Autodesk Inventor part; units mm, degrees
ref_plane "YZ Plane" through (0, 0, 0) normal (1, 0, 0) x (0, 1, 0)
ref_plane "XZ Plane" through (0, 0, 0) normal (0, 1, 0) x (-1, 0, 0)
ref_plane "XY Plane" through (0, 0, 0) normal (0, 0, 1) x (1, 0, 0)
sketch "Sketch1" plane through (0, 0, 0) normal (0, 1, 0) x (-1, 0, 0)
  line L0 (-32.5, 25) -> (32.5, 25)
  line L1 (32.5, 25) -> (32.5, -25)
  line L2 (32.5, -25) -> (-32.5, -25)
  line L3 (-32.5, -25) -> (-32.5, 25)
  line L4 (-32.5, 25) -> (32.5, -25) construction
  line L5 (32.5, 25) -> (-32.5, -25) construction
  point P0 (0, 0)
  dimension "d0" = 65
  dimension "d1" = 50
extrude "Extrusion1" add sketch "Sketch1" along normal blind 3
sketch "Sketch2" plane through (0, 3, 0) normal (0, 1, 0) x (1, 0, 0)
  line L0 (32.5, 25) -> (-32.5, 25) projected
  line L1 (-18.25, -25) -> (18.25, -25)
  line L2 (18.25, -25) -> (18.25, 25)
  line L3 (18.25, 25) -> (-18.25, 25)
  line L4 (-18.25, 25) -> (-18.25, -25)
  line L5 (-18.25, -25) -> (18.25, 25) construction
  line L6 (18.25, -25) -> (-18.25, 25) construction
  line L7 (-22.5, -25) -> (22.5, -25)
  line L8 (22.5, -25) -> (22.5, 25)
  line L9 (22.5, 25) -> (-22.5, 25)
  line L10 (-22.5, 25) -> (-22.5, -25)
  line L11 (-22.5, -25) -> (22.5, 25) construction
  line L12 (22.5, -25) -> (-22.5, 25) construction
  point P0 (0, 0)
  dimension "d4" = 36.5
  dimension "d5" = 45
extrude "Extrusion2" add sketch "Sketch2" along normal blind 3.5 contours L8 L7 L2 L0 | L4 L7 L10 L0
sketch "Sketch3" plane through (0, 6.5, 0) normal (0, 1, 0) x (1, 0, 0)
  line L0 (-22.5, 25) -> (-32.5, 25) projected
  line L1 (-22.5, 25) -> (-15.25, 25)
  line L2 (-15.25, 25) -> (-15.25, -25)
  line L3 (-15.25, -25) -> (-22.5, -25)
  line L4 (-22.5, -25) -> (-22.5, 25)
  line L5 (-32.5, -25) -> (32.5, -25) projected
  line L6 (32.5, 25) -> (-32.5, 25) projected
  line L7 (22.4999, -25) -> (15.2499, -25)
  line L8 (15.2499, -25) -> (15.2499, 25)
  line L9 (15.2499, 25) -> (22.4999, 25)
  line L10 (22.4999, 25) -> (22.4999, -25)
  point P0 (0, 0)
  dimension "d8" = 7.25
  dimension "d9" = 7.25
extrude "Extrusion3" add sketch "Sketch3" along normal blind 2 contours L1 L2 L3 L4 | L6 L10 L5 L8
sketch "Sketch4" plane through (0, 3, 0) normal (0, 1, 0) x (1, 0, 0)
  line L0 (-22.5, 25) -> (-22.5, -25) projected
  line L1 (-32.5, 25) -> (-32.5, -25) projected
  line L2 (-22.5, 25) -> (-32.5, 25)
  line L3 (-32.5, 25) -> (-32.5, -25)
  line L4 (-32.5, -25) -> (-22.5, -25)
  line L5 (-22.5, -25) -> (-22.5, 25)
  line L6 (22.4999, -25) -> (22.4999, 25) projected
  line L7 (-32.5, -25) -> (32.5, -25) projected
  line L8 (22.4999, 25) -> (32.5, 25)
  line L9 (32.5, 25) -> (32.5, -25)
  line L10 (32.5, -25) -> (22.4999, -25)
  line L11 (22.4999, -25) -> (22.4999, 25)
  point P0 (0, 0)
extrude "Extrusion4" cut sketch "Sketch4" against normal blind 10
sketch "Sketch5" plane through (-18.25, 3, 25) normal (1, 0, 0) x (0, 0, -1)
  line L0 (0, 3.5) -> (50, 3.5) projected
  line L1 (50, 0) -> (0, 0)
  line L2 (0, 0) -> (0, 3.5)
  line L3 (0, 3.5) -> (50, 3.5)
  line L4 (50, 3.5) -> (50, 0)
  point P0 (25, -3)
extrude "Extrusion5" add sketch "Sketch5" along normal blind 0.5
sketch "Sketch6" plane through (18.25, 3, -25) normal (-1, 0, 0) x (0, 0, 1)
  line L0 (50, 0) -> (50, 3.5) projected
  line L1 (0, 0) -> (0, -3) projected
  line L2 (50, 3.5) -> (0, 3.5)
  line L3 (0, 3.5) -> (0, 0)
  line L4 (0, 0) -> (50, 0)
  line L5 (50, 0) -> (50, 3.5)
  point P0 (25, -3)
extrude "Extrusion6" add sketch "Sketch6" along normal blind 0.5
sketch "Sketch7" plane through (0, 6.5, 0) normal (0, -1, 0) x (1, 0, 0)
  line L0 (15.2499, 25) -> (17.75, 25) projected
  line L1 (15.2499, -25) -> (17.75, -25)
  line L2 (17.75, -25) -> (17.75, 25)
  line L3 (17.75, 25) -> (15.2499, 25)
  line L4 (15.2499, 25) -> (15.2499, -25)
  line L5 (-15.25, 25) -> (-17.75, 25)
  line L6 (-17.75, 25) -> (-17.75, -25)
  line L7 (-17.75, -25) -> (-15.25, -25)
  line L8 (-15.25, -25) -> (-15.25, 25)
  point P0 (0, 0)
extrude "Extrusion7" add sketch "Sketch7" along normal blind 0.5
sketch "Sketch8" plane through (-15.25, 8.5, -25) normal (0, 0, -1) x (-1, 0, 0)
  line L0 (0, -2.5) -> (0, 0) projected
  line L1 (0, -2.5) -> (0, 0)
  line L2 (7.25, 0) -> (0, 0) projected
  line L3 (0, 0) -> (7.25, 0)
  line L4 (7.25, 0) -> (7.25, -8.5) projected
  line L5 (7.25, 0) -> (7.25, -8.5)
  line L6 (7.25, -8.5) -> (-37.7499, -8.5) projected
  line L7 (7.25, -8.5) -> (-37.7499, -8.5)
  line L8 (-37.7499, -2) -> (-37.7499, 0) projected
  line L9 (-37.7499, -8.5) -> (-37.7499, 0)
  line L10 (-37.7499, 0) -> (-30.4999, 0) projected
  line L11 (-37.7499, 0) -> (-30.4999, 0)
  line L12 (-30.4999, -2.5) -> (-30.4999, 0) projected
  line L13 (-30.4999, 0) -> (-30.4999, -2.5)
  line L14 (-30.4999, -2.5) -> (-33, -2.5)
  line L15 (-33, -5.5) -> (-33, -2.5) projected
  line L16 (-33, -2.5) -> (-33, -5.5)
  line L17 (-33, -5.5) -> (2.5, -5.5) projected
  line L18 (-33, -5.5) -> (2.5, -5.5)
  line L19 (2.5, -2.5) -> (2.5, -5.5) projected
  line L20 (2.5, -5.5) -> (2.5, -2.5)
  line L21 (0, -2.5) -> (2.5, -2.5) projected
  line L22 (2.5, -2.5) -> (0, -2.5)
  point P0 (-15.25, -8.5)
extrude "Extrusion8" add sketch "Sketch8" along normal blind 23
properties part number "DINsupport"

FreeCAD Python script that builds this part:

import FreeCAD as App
import Part
import Sketcher

doc = App.newDocument("Part")
body = doc.addObject("PartDesign::Body", "Body")

sketch1 = body.newObject("Sketcher::SketchObject", "Sketch")
sketch1.AttachmentSupport = (doc.getObject("XZ_Plane"), [""])
sketch1.MapMode = "FlatFace"
sketch1.addGeometry([
    Part.LineSegment(App.Vector(-32, 25, 0), App.Vector(32, 25, 0)),
    Part.LineSegment(App.Vector(32, 25, 0), App.Vector(32, -25, 0)),
    Part.LineSegment(App.Vector(32, -25, 0), App.Vector(-32, -25, 0)),
    Part.LineSegment(App.Vector(-32, -25, 0), App.Vector(-32, 25, 0)),
], False)
sketch1.addConstraint([
    Sketcher.Constraint("Coincident", 0, 2, 1, 1),
    Sketcher.Constraint("Coincident", 1, 2, 2, 1),
    Sketcher.Constraint("Coincident", 2, 2, 3, 1),
    Sketcher.Constraint("Coincident", 3, 2, 0, 1),
    Sketcher.Constraint("Horizontal", 0),
    Sketcher.Constraint("Vertical", 1),
    Sketcher.Constraint("Horizontal", 2),
    Sketcher.Constraint("Vertical", 3),
    Sketcher.Constraint("Symmetric", 0, 2, 2, 2, -1, 1),
    Sketcher.Constraint("DistanceX", 0, 1, 0, 2, 65.0),
    Sketcher.Constraint("DistanceY", 1, 2, 1, 1, 50.0),
])
pad1 = body.newObject("PartDesign::Pad", "Pad")
pad1.Profile = sketch1
pad1.Length = 3
pad1.Reversed = True

sketch2 = body.newObject("Sketcher::SketchObject", "Sketch001")
sketch2.AttachmentSupport = (doc.getObject("XZ_Plane"), [""])
sketch2.MapMode = "FlatFace"
sketch2.AttachmentOffset = App.Placement(App.Vector(0, 0, -3), App.Rotation())
sketch2.addGeometry([
    Part.LineSegment(App.Vector(22.5, 25, 0), App.Vector(22.5, -25, 0)),
    Part.LineSegment(App.Vector(22.5, -25, 0), App.Vector(18.2, -25, 0)),
    Part.LineSegment(App.Vector(18.2, -25, 0), App.Vector(18.2, 25, 0)),
    Part.LineSegment(App.Vector(18.2, 25, 0), App.Vector(22.5, 25, 0)),
    Part.LineSegment(App.Vector(-18.2, 25, 0), App.Vector(-18.2, -25, 0)),
    Part.LineSegment(App.Vector(-18.2, -25, 0), App.Vector(-22.5, -25, 0)),
    Part.LineSegment(App.Vector(-22.5, -25, 0), App.Vector(-22.5, 25, 0)),
    Part.LineSegment(App.Vector(-22.5, 25, 0), App.Vector(-18.2, 25, 0)),
], False)
sketch2.addConstraint([
    Sketcher.Constraint("Coincident", 0, 2, 1, 1),
    Sketcher.Constraint("Coincident", 1, 2, 2, 1),
    Sketcher.Constraint("Coincident", 2, 2, 3, 1),
    Sketcher.Constraint("Coincident", 3, 2, 0, 1),
    Sketcher.Constraint("Coincident", 4, 2, 5, 1),
    Sketcher.Constraint("Coincident", 5, 2, 6, 1),
    Sketcher.Constraint("Coincident", 6, 2, 7, 1),
    Sketcher.Constraint("Coincident", 7, 2, 4, 1),
    Sketcher.Constraint("Vertical", 0),
    Sketcher.Constraint("Horizontal", 1),
    Sketcher.Constraint("Vertical", 2),
    Sketcher.Constraint("Horizontal", 3),
    Sketcher.Constraint("Vertical", 4),
    Sketcher.Constraint("Horizontal", 5),
    Sketcher.Constraint("Vertical", 6),
    Sketcher.Constraint("Horizontal", 7),
    Sketcher.Constraint("Symmetric", 2, 2, 4, 2, -1, 1),
    Sketcher.Constraint("Symmetric", 0, 2, 6, 2, -1, 1),
    Sketcher.Constraint("Horizontal", 1, 2, 4, 2),
    Sketcher.Constraint("DistanceX", 5, 2, 0, 2, 45.0),
    Sketcher.Constraint("DistanceX", 4, 2, 1, 2, 36.5),
    Sketcher.Constraint("DistanceY", 0, 2, 0, 1, 50.0),
])
pad2 = body.newObject("PartDesign::Pad", "Pad001")
pad2.Profile = sketch2
pad2.Length = 3.5
pad2.Reversed = True

sketch3 = body.newObject("Sketcher::SketchObject", "Sketch002")
sketch3.AttachmentSupport = (doc.getObject("XZ_Plane"), [""])
sketch3.MapMode = "FlatFace"
sketch3.AttachmentOffset = App.Placement(App.Vector(0, 0, -6.5), App.Rotation())
sketch3.addGeometry([
    Part.LineSegment(App.Vector(-15, -25, 0), App.Vector(-22, -25, 0)),
    Part.LineSegment(App.Vector(-22, -25, 0), App.Vector(-22, 25, 0)),
    Part.LineSegment(App.Vector(-22, 25, 0), App.Vector(-15, 25, 0)),
    Part.LineSegment(App.Vector(-15, 25, 0), App.Vector(-15, -25, 0)),
    Part.LineSegment(App.Vector(22, -25, 0), App.Vector(15, -25, 0)),
    Part.LineSegment(App.Vector(15, -25, 0), App.Vector(15, 25, 0)),
    Part.LineSegment(App.Vector(15, 25, 0), App.Vector(22, 25, 0)),
    Part.LineSegment(App.Vector(22, 25, 0), App.Vector(22, -25, 0)),
], False)
sketch3.addConstraint([
    Sketcher.Constraint("Coincident", 0, 2, 1, 1),
    Sketcher.Constraint("Coincident", 1, 2, 2, 1),
    Sketcher.Constraint("Coincident", 2, 2, 3, 1),
    Sketcher.Constraint("Coincident", 3, 2, 0, 1),
    Sketcher.Constraint("Coincident", 4, 2, 5, 1),
    Sketcher.Constraint("Coincident", 5, 2, 6, 1),
    Sketcher.Constraint("Coincident", 6, 2, 7, 1),
    Sketcher.Constraint("Coincident", 7, 2, 4, 1),
    Sketcher.Constraint("Horizontal", 0),
    Sketcher.Constraint("Vertical", 1),
    Sketcher.Constraint("Horizontal", 2),
    Sketcher.Constraint("Vertical", 3),
    Sketcher.Constraint("Horizontal", 4),
    Sketcher.Constraint("Vertical", 5),
    Sketcher.Constraint("Horizontal", 6),
    Sketcher.Constraint("Vertical", 7),
    Sketcher.Constraint("Symmetric", 2, 2, 4, 2, -1, 1),
    Sketcher.Constraint("Symmetric", 0, 2, 6, 2, -1, 1),
    Sketcher.Constraint("Horizontal", 3, 2, 4, 2),
    Sketcher.Constraint("DistanceX", 0, 2, 0, 1, 7.25),
    Sketcher.Constraint("DistanceY", 1, 1, 1, 2, 50.0),
    Sketcher.Constraint("DistanceX", 1, 2, 6, 2, 45.0),
])
pad3 = body.newObject("PartDesign::Pad", "Pad002")
pad3.Profile = sketch3
pad3.Length = 2
pad3.Reversed = True

sketch4 = body.newObject("Sketcher::SketchObject", "Sketch003")
sketch4.AttachmentSupport = (doc.getObject("XZ_Plane"), [""])
sketch4.MapMode = "FlatFace"
sketch4.AttachmentOffset = App.Placement(App.Vector(0, 0, -3), App.Rotation())
sketch4.addGeometry([
    Part.LineSegment(App.Vector(22, -25, 0), App.Vector(22, 25, 0)),
    Part.LineSegment(App.Vector(22, 25, 0), App.Vector(32, 25, 0)),
    Part.LineSegment(App.Vector(32, 25, 0), App.Vector(32, -25, 0)),
    Part.LineSegment(App.Vector(32, -25, 0), App.Vector(22, -25, 0)),
    Part.LineSegment(App.Vector(-22, 25, 0), App.Vector(-22, -25, 0)),
    Part.LineSegment(App.Vector(-22, -25, 0), App.Vector(-32, -25, 0)),
    Part.LineSegment(App.Vector(-32, -25, 0), App.Vector(-32, 25, 0)),
    Part.LineSegment(App.Vector(-32, 25, 0), App.Vector(-22, 25, 0)),
], False)
sketch4.addConstraint([
    Sketcher.Constraint("Coincident", 0, 2, 1, 1),
    Sketcher.Constraint("Coincident", 1, 2, 2, 1),
    Sketcher.Constraint("Coincident", 2, 2, 3, 1),
    Sketcher.Constraint("Coincident", 3, 2, 0, 1),
    Sketcher.Constraint("Coincident", 4, 2, 5, 1),
    Sketcher.Constraint("Coincident", 5, 2, 6, 1),
    Sketcher.Constraint("Coincident", 6, 2, 7, 1),
    Sketcher.Constraint("Coincident", 7, 2, 4, 1),
    Sketcher.Constraint("Vertical", 0),
    Sketcher.Constraint("Horizontal", 1),
    Sketcher.Constraint("Vertical", 2),
    Sketcher.Constraint("Horizontal", 3),
    Sketcher.Constraint("Vertical", 4),
    Sketcher.Constraint("Horizontal", 5),
    Sketcher.Constraint("Vertical", 6),
    Sketcher.Constraint("Horizontal", 7),
    Sketcher.Constraint("Symmetric", 0, 2, 4, 2, -1, 1),
    Sketcher.Constraint("Symmetric", 2, 2, 6, 2, -1, 1),
    Sketcher.Constraint("Horizontal", 3, 2, 4, 2),
    Sketcher.Constraint("DistanceX", 1, 1, 1, 2, 10.0),
    Sketcher.Constraint("DistanceY", 0, 1, 0, 2, 50.0),
    Sketcher.Constraint("DistanceX", 4, 2, 3, 2, 45.0),
])
pocket1 = body.newObject("PartDesign::Pocket", "Pocket")
pocket1.Profile = sketch4
pocket1.Length = 10
pocket1.Reversed = True

sketch5 = body.newObject("Sketcher::SketchObject", "Sketch004")
sketch5.AttachmentSupport = (doc.getObject("YZ_Plane"), [""])
sketch5.MapMode = "FlatFace"
sketch5.AttachmentOffset = App.Placement(App.Vector(0, 0, -18.25), App.Rotation())
sketch5.addGeometry([
    Part.LineSegment(App.Vector(6.5, -25, 0), App.Vector(6.5, 25, 0)),
    Part.LineSegment(App.Vector(6.5, 25, 0), App.Vector(3, 25, 0)),
    Part.LineSegment(App.Vector(3, 25, 0), App.Vector(3, -25, 0)),
    Part.LineSegment(App.Vector(3, -25, 0), App.Vector(6.5, -25, 0)),
], False)
sketch5.addConstraint([
    Sketcher.Constraint("Coincident", 0, 2, 1, 1),
    Sketcher.Constraint("Coincident", 1, 2, 2, 1),
    Sketcher.Constraint("Coincident", 2, 2, 3, 1),
    Sketcher.Constraint("Coincident", 3, 2, 0, 1),
    Sketcher.Constraint("Vertical", 0),
    Sketcher.Constraint("Horizontal", 1),
    Sketcher.Constraint("Vertical", 2),
    Sketcher.Constraint("Horizontal", 3),
    Sketcher.Constraint("DistanceY", 0, 1, 0, 2, 50.0),
    Sketcher.Constraint("DistanceX", 1, 2, 1, 1, 3.5),
    Sketcher.Constraint("DistanceY", -1, 1, 0, 2, 25.0),
    Sketcher.Constraint("DistanceX", -1, 1, 1, 2, 3.0),
])
pad4 = body.newObject("PartDesign::Pad", "Pad003")
pad4.Profile = sketch5
pad4.Length = 0.5

sketch6 = body.newObject("Sketcher::SketchObject", "Sketch005")
sketch6.AttachmentSupport = (doc.getObject("YZ_Plane"), [""])
sketch6.MapMode = "FlatFace"
sketch6.AttachmentOffset = App.Placement(App.Vector(0, 0, 18.25), App.Rotation())
sketch6.addGeometry([
    Part.LineSegment(App.Vector(3, -25, 0), App.Vector(3, 25, 0)),
    Part.LineSegment(App.Vector(3, 25, 0), App.Vector(6.5, 25, 0)),
    Part.LineSegment(App.Vector(6.5, 25, 0), App.Vector(6.5, -25, 0)),
    Part.LineSegment(App.Vector(6.5, -25, 0), App.Vector(3, -25, 0)),
], False)
sketch6.addConstraint([
    Sketcher.Constraint("Coincident", 0, 2, 1, 1),
    Sketcher.Constraint("Coincident", 1, 2, 2, 1),
    Sketcher.Constraint("Coincident", 2, 2, 3, 1),
    Sketcher.Constraint("Coincident", 3, 2, 0, 1),
    Sketcher.Constraint("Vertical", 0),
    Sketcher.Constraint("Horizontal", 1),
    Sketcher.Constraint("Vertical", 2),
    Sketcher.Constraint("Horizontal", 3),
    Sketcher.Constraint("DistanceY", 0, 1, 0, 2, 50.0),
    Sketcher.Constraint("DistanceX", 1, 1, 1, 2, 3.5),
    Sketcher.Constraint("DistanceX", -1, 1, 0, 2, 3.0),
    Sketcher.Constraint("DistanceY", -1, 1, 0, 2, 25.0),
])
pad5 = body.newObject("PartDesign::Pad", "Pad004")
pad5.Profile = sketch6
pad5.Length = 0.5
pad5.Reversed = True

sketch7 = body.newObject("Sketcher::SketchObject", "Sketch006")
sketch7.AttachmentSupport = (doc.getObject("XZ_Plane"), [""])
sketch7.MapMode = "FlatFace"
sketch7.AttachmentOffset = App.Placement(App.Vector(0, 0, -6.5), App.Rotation())
sketch7.addGeometry([
    Part.LineSegment(App.Vector(17.8, 25, 0), App.Vector(15.2, 25, 0)),
    Part.LineSegment(App.Vector(15.2, 25, 0), App.Vector(15.2, -25, 0)),
    Part.LineSegment(App.Vector(15.2, -25, 0), App.Vector(17.8, -25, 0)),
    Part.LineSegment(App.Vector(17.8, -25, 0), App.Vector(17.8, 25, 0)),
    Part.LineSegment(App.Vector(-15.2, -25, 0), App.Vector(-15.2, 25, 0)),
    Part.LineSegment(App.Vector(-15.2, 25, 0), App.Vector(-17.8, 25, 0)),
    Part.LineSegment(App.Vector(-17.8, 25, 0), App.Vector(-17.8, -25, 0)),
    Part.LineSegment(App.Vector(-17.8, -25, 0), App.Vector(-15.2, -25, 0)),
], False)
sketch7.addConstraint([
    Sketcher.Constraint("Coincident", 0, 2, 1, 1),
    Sketcher.Constraint("Coincident", 1, 2, 2, 1),
    Sketcher.Constraint("Coincident", 2, 2, 3, 1),
    Sketcher.Constraint("Coincident", 3, 2, 0, 1),
    Sketcher.Constraint("Coincident", 4, 2, 5, 1),
    Sketcher.Constraint("Coincident", 5, 2, 6, 1),
    Sketcher.Constraint("Coincident", 6, 2, 7, 1),
    Sketcher.Constraint("Coincident", 7, 2, 4, 1),
    Sketcher.Constraint("Horizontal", 0),
    Sketcher.Constraint("Vertical", 1),
    Sketcher.Constraint("Horizontal", 2),
    Sketcher.Constraint("Vertical", 3),
    Sketcher.Constraint("Vertical", 4),
    Sketcher.Constraint("Horizontal", 5),
    Sketcher.Constraint("Vertical", 6),
    Sketcher.Constraint("Horizontal", 7),
    Sketcher.Constraint("Symmetric", 1, 2, 4, 2, -1, 1),
    Sketcher.Constraint("Symmetric", 3, 2, 6, 2, -1, 1),
    Sketcher.Constraint("Horizontal", 3, 2, 4, 2),
    Sketcher.Constraint("DistanceY", 1, 2, 1, 1, 50.0),
    Sketcher.Constraint("DistanceX", 0, 2, 0, 1, 2.5),
    Sketcher.Constraint("DistanceX", 4, 2, 3, 2, 33.0),
])
pad6 = body.newObject("PartDesign::Pad", "Pad005")
pad6.Profile = sketch7
pad6.Length = 0.5

sketch8 = body.newObject("Sketcher::SketchObject", "Sketch007")
sketch8.AttachmentSupport = (doc.getObject("XY_Plane"), [""])
sketch8.MapMode = "FlatFace"
sketch8.AttachmentOffset = App.Placement(App.Vector(0, 0, -25), App.Rotation())
sketch8.addGeometry([
    Part.LineSegment(App.Vector(-15.2, 8.5, 0), App.Vector(-15.2, 6, 0)),
    Part.LineSegment(App.Vector(-15.2, 6, 0), App.Vector(-17.8, 6, 0)),
    Part.LineSegment(App.Vector(-17.8, 6, 0), App.Vector(-17.8, 3, 0)),
    Part.LineSegment(App.Vector(-17.8, 3, 0), App.Vector(17.8, 3, 0)),
    Part.LineSegment(App.Vector(17.8, 3, 0), App.Vector(17.8, 6, 0)),
    Part.LineSegment(App.Vector(17.8, 6, 0), App.Vector(15.2, 6, 0)),
    Part.LineSegment(App.Vector(15.2, 6, 0), App.Vector(15.2, 8.5, 0)),
    Part.LineSegment(App.Vector(15.2, 8.5, 0), App.Vector(22.5, 8.5, 0)),
    Part.LineSegment(App.Vector(22.5, 8.5, 0), App.Vector(22.5, 0, 0)),
    Part.LineSegment(App.Vector(22.5, 0, 0), App.Vector(-22.5, 0, 0)),
    Part.LineSegment(App.Vector(-22.5, 0, 0), App.Vector(-22.5, 8.5, 0)),
    Part.LineSegment(App.Vector(-22.5, 8.5, 0), App.Vector(-15.2, 8.5, 0)),
], False)
sketch8.addConstraint([
    Sketcher.Constraint("Coincident", 0, 2, 1, 1),
    Sketcher.Constraint("Coincident", 1, 2, 2, 1),
    Sketcher.Constraint("Coincident", 2, 2, 3, 1),
    Sketcher.Constraint("Coincident", 3, 2, 4, 1),
    Sketcher.Constraint("Coincident", 4, 2, 5, 1),
    Sketcher.Constraint("Coincident", 5, 2, 6, 1),
    Sketcher.Constraint("Coincident", 6, 2, 7, 1),
    Sketcher.Constraint("Coincident", 7, 2, 8, 1),
    Sketcher.Constraint("Coincident", 8, 2, 9, 1),
    Sketcher.Constraint("Coincident", 9, 2, 10, 1),
    Sketcher.Constraint("Coincident", 10, 2, 11, 1),
    Sketcher.Constraint("Coincident", 11, 2, 0, 1),
    Sketcher.Constraint("Vertical", 0),
    Sketcher.Constraint("Horizontal", 1),
    Sketcher.Constraint("Vertical", 2),
    Sketcher.Constraint("Horizontal", 3),
    Sketcher.Constraint("Vertical", 4),
    Sketcher.Constraint("Horizontal", 5),
    Sketcher.Constraint("Vertical", 6),
    Sketcher.Constraint("Horizontal", 7),
    Sketcher.Constraint("Vertical", 8),
    Sketcher.Constraint("Horizontal", 9),
    Sketcher.Constraint("Vertical", 10),
    Sketcher.Constraint("Horizontal", 11),
    Sketcher.Constraint("Symmetric", 8, 2, 9, 2, -1, 1),
    Sketcher.Constraint("Symmetric", 1, 2, 4, 2, -2),
    Sketcher.Constraint("Symmetric", 6, 2, 11, 2, -2),
    Sketcher.Constraint("Equal", 5, 0),
    Sketcher.Constraint("DistanceX", 9, 2, 9, 1, 45.0),
    Sketcher.Constraint("DistanceY", 2, 2, 2, 1, 3.0),
    Sketcher.Constraint("DistanceX", 1, 2, 1, 1, 2.5),
    Sketcher.Constraint("DistanceX", 3, 1, 3, 2, 35.5),
    Sketcher.Constraint("DistanceY", 8, 2, 8, 1, 8.5),
])
pad7 = body.newObject("PartDesign::Pad", "Pad006")
pad7.Profile = sketch8
pad7.Length = 23
pad7.Reversed = True

doc.recompute()
